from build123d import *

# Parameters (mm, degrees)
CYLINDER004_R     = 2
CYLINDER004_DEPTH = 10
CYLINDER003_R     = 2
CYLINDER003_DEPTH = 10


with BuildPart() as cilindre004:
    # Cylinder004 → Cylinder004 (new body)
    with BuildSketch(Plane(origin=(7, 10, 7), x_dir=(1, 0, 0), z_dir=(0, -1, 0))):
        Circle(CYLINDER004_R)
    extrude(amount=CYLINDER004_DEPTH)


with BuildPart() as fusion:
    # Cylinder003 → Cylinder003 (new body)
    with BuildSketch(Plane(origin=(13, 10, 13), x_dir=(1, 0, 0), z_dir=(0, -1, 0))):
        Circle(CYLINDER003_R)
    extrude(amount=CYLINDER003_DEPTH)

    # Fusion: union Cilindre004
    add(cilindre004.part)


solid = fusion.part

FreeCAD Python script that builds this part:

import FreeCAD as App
import Part
import Sketcher

doc = App.newDocument("Part")
params = doc.addObject("Spreadsheet::Sheet", "Params")
for row, (alias, value) in enumerate([
    ("sketch1_diameter", "4 mm"),
    ("pad1_length", "10 mm"),
    ("sketch2_diameter", "4 mm"),
    ("pad2_length", "10 mm"),
], start=1):
    params.set(f"A{row}", alias)
    params.set(f"B{row}", "=" + value)
    params.setAlias(f"B{row}", alias)

body = doc.addObject("PartDesign::Body", "Body")

# Sketch on XZ plane
sketch1 = doc.addObject("Sketcher::SketchObject", "Sketch")
body.addObject(sketch1)
sketch1.AttachmentSupport = (doc.XZ_Plane, [""])
sketch1.MapMode = "FlatFace"
sketch1.AttachmentOffset = App.Placement(App.Vector(0, 0, -10), App.Rotation())
sketch1.addGeometry(Part.Circle(App.Vector(7, 7, 0), App.Vector(0, 0, 1), 2), False)
sketch1.addConstraint([
    Sketcher.Constraint("Diameter", 0, 4.0),
    Sketcher.Constraint("DistanceX", -1, 1, 0, 3, 7.0),
    Sketcher.Constraint("DistanceY", -1, 1, 0, 3, 7.0),
])
sketch1.setExpression("Constraints[0]", "Params.sketch1_diameter")
pad1 = doc.addObject("PartDesign::Pad", "Pad")
body.addObject(pad1)
pad1.Profile = sketch1
pad1.setExpression("Length", "Params.pad1_length")
body2 = doc.addObject("PartDesign::Body", "Body001")
body2.AllowCompound = True

# Sketch on XZ plane
sketch2 = doc.addObject("Sketcher::SketchObject", "Sketch001")
body2.addObject(sketch2)
sketch2.AttachmentSupport = (doc.getObject("XZ_Plane001"), [""])
sketch2.MapMode = "FlatFace"
sketch2.AttachmentOffset = App.Placement(App.Vector(0, 0, -10), App.Rotation())
sketch2.addGeometry(Part.Circle(App.Vector(13, 13, 0), App.Vector(0, 0, 1), 2), False)
sketch2.addConstraint([
    Sketcher.Constraint("Diameter", 0, 4.0),
    Sketcher.Constraint("DistanceX", -1, 1, 0, 3, 13.0),
    Sketcher.Constraint("DistanceY", -1, 1, 0, 3, 13.0),
])
sketch2.setExpression("Constraints[0]", "Params.sketch2_diameter")
pad2 = doc.addObject("PartDesign::Pad", "Pad001")
body2.addObject(pad2)
pad2.Profile = sketch2
pad2.setExpression("Length", "Params.pad2_length")
doc.recompute()

boolean = doc.addObject("PartDesign::Boolean", "Boolean")
body2.addObject(boolean)
boolean.Type = "Fuse"
boolean.addObjects([body])

doc.recompute()
